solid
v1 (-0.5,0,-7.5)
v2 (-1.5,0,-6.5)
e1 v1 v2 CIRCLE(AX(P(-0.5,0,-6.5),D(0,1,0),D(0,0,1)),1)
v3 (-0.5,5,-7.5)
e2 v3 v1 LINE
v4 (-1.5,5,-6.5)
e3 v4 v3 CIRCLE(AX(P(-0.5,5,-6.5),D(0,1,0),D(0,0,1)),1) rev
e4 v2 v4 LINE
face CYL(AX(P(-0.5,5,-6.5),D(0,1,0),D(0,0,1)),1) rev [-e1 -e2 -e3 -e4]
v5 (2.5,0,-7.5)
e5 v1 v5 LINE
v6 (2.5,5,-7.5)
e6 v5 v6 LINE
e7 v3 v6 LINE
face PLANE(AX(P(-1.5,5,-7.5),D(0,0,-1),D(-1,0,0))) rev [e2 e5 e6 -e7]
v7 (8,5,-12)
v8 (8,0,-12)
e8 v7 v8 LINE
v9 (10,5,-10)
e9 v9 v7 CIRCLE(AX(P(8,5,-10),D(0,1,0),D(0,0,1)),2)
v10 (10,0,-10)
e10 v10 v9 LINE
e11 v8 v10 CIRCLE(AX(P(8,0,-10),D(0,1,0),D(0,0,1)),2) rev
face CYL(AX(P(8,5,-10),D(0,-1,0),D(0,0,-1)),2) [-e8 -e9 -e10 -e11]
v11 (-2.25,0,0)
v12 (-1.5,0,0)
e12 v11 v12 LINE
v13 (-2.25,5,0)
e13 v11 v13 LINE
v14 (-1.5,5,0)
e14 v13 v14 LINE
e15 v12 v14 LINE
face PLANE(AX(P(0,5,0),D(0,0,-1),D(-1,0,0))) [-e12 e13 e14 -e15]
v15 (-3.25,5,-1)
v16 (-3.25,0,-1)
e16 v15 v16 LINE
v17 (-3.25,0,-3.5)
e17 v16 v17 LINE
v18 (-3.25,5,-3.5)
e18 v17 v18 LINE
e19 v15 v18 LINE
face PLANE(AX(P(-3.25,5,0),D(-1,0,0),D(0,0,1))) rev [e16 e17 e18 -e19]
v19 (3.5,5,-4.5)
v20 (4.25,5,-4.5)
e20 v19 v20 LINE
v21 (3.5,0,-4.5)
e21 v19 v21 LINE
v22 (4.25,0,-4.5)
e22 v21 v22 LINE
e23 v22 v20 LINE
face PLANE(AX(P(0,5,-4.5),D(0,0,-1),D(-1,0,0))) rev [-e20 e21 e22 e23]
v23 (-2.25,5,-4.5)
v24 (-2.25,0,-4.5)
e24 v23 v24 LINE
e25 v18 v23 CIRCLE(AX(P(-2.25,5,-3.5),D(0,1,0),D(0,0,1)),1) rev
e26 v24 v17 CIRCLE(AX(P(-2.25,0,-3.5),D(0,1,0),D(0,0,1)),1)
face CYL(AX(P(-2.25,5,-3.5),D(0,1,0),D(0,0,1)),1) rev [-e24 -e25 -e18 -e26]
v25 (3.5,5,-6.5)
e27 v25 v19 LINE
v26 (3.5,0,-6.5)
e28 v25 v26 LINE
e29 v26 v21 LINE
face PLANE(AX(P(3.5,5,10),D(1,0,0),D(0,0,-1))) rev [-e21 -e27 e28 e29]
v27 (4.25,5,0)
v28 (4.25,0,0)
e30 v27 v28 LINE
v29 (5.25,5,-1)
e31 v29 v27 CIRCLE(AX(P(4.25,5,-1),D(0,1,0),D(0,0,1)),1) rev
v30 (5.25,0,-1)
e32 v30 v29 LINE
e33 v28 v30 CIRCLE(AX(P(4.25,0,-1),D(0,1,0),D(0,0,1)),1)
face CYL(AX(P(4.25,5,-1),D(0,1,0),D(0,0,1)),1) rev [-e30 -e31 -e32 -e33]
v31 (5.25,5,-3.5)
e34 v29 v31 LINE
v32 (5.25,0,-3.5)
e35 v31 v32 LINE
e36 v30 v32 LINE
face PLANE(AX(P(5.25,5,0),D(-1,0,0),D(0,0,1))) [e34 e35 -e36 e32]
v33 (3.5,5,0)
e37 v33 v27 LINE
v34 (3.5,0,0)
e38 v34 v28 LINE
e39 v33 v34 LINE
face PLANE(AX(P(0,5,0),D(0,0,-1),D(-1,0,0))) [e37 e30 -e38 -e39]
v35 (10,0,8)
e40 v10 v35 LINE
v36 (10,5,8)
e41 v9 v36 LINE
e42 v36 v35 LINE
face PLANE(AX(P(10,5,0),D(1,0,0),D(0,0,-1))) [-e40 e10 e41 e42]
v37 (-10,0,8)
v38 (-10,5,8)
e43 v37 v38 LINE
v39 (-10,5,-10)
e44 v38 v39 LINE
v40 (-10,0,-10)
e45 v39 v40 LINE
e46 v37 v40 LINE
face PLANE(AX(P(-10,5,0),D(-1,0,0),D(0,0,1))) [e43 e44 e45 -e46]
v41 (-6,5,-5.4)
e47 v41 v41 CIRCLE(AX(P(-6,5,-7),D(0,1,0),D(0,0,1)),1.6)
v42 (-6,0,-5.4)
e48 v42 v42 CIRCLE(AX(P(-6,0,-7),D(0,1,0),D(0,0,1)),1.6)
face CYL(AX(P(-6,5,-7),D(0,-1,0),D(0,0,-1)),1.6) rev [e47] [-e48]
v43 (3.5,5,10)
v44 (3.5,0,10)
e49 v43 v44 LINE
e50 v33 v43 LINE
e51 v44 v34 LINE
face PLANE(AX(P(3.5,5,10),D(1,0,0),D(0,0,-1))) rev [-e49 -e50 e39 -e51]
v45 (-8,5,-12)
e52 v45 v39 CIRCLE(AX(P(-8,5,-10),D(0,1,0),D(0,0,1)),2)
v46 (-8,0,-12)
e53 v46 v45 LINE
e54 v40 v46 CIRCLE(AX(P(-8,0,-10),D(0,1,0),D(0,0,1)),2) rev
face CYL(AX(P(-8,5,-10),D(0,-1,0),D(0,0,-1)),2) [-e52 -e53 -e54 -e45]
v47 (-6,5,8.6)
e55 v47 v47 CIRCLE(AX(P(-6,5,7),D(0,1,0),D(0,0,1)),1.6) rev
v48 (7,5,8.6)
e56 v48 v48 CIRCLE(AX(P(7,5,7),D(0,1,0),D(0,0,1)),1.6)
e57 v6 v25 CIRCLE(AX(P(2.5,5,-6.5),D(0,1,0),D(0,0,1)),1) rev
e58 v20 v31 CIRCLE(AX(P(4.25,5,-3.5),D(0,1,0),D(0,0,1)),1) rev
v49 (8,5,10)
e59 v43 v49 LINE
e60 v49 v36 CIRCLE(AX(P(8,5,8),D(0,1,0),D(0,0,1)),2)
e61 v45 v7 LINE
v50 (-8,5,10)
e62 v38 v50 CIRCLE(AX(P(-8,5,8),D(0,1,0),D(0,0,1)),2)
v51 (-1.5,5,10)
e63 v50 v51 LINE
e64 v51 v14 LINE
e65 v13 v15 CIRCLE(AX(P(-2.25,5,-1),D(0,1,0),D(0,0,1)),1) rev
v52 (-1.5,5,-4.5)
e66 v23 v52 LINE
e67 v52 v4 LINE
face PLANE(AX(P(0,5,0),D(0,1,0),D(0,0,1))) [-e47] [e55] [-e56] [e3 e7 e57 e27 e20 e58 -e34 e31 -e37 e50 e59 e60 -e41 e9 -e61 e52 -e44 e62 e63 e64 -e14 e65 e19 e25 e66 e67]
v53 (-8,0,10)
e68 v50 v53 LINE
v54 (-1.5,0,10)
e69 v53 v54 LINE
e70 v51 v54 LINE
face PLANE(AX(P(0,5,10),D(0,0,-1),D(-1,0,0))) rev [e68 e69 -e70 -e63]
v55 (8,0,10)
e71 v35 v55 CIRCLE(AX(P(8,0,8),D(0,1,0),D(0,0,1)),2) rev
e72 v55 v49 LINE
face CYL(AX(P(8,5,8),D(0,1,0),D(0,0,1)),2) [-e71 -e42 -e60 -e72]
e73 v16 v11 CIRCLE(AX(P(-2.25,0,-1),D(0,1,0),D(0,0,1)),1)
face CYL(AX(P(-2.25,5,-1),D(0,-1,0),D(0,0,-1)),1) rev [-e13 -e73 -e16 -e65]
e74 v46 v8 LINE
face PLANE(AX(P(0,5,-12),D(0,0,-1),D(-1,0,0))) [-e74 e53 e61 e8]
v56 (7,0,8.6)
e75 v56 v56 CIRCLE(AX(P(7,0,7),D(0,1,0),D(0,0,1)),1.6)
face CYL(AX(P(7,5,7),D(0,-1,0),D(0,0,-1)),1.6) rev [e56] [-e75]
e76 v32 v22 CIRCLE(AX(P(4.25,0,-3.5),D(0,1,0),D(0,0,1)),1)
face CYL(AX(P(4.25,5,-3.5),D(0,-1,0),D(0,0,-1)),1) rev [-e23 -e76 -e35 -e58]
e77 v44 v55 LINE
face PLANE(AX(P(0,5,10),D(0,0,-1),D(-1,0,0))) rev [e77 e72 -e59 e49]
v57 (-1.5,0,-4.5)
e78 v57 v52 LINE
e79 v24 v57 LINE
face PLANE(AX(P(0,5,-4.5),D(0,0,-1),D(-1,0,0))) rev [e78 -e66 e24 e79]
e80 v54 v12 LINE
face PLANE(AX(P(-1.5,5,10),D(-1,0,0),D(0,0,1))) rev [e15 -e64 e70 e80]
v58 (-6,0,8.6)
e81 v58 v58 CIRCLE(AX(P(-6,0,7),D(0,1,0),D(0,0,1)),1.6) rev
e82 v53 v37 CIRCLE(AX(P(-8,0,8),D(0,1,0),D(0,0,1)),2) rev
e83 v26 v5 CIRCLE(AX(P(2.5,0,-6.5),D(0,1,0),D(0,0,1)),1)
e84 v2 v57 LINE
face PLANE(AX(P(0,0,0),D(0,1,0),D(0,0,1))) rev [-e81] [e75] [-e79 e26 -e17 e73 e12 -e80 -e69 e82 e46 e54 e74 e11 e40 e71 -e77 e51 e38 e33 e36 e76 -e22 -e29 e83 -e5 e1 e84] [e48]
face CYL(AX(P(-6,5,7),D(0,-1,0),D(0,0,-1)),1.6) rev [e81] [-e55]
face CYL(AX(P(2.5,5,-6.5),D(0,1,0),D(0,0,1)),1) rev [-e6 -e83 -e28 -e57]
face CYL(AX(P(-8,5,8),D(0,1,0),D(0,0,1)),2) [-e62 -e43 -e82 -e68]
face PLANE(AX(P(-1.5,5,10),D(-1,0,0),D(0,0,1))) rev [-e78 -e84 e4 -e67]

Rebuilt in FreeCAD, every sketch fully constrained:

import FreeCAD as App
import Part
import Sketcher


def edges_at(feature, points):
    """Names of the edges that pass closest to the given points."""
    edges = feature.Shape.Edges
    near = lambda p: min(range(len(edges)), key=lambda i: edges[i].distToShape(Part.Vertex(*p))[0])
    return sorted({f"Edge{near(p) + 1}" for p in points})

doc = App.newDocument("Part")
params = doc.addObject("Spreadsheet::Sheet", "Params")
for row, (alias, value) in enumerate([
    ("sketch1_diameter", "3.2 mm"),
    ("sketch1_width", "20 mm"),
    ("sketch1_height", "22 mm"),
    ("sketch1_width2", "8.5 mm"),
    ("sketch1_height2", "4.5 mm"),
    ("pad1_length", "5 mm"),
    ("sketch2_width", "5 mm"),
    ("sketch2_height", "17.5 mm"),
    ("fillet_radius", "2 mm"),
    ("fillet2_radius", "1 mm"),
], start=1):
    params.set(f"A{row}", alias)
    params.set(f"B{row}", "=" + value)
    params.setAlias(f"B{row}", alias)

body = doc.addObject("PartDesign::Body", "Body")

# Sketch on XZ plane
sketch1 = body.newObject("Sketcher::SketchObject", "Sketch")
sketch1.AttachmentSupport = (doc.getObject("XZ_Plane"), [""])
sketch1.MapMode = "FlatFace"
sketch1.addGeometry(Part.LineSegment(App.Vector(-10, -12, 0), App.Vector(-10, 10, 0)), False)
sketch1.addGeometry(Part.LineSegment(App.Vector(-10, 10, 0), App.Vector(10, 10, 0)), False)
sketch1.addGeometry(Part.LineSegment(App.Vector(10, 10, 0), App.Vector(10, -12, 0)), False)
sketch1.addGeometry(Part.LineSegment(App.Vector(10, -12, 0), App.Vector(-10, -12, 0)), False)
sketch1.addGeometry(Part.Circle(App.Vector(-6, 7, 0), App.Vector(0, 0, 1), 1.6), False)
sketch1.addGeometry(Part.Circle(App.Vector(7, 7, 0), App.Vector(0, 0, 1), 1.6), False)
sketch1.addGeometry(Part.Circle(App.Vector(-6, -7, 0), App.Vector(0, 0, 1), 1.6), False)
sketch1.addGeometry(Part.LineSegment(App.Vector(5.2, 0, 0), App.Vector(-3.2, 0, 0)), False)
sketch1.addGeometry(Part.LineSegment(App.Vector(-3.2, 0, 0), App.Vector(-3.2, -4.5, 0)), False)
sketch1.addGeometry(Part.LineSegment(App.Vector(-3.2, -4.5, 0), App.Vector(5.2, -4.5, 0)), False)
sketch1.addGeometry(Part.LineSegment(App.Vector(5.2, -4.5, 0), App.Vector(5.2, 0, 0)), False)
sketch1.addConstraint(Sketcher.Constraint("Coincident", 0, 2, 1, 1))
sketch1.addConstraint(Sketcher.Constraint("Coincident", 1, 2, 2, 1))
sketch1.addConstraint(Sketcher.Constraint("Coincident", 2, 2, 3, 1))
sketch1.addConstraint(Sketcher.Constraint("Coincident", 3, 2, 0, 1))
sketch1.addConstraint(Sketcher.Constraint("Coincident", 7, 2, 8, 1))
sketch1.addConstraint(Sketcher.Constraint("Coincident", 8, 2, 9, 1))
sketch1.addConstraint(Sketcher.Constraint("Coincident", 9, 2, 10, 1))
sketch1.addConstraint(Sketcher.Constraint("Coincident", 10, 2, 7, 1))
sketch1.addConstraint(Sketcher.Constraint("Vertical", 0))
sketch1.addConstraint(Sketcher.Constraint("Horizontal", 1))
sketch1.addConstraint(Sketcher.Constraint("Vertical", 2))
sketch1.addConstraint(Sketcher.Constraint("Horizontal", 3))
sketch1.addConstraint(Sketcher.Constraint("Horizontal", 7))
sketch1.addConstraint(Sketcher.Constraint("Vertical", 8))
sketch1.addConstraint(Sketcher.Constraint("Horizontal", 9))
sketch1.addConstraint(Sketcher.Constraint("Vertical", 10))
sketch1.addConstraint(Sketcher.Constraint("Equal", 4, 5))
sketch1.addConstraint(Sketcher.Constraint("Equal", 5, 6))
sketch1.addConstraint(Sketcher.Constraint("Symmetric", 4, 3, 6, 3, -1))
sketch1.addConstraint(Sketcher.Constraint("PointOnObject", 7, 2, -1))
sketch1.addConstraint(Sketcher.Constraint("Horizontal", 4, 3, 5, 3))
sketch1.addConstraint(Sketcher.Constraint("Diameter", 4, 3.2))
sketch1.addConstraint(Sketcher.Constraint("DistanceX", 1, 1, 1, 2, 20.0))
sketch1.addConstraint(Sketcher.Constraint("DistanceY", 0, 1, 0, 2, 22.0))
sketch1.addConstraint(Sketcher.Constraint("DistanceX", 7, 2, 7, 1, 8.5))
sketch1.addConstraint(Sketcher.Constraint("DistanceY", 8, 2, 8, 1, 4.5))
sketch1.addConstraint(Sketcher.Constraint("DistanceX", 4, 3, -1, 1, 6.0))
sketch1.addConstraint(Sketcher.Constraint("DistanceY", -1, 1, 4, 3, 7.0))
sketch1.addConstraint(Sketcher.Constraint("DistanceX", -1, 1, 5, 3, 7.0))
sketch1.addConstraint(Sketcher.Constraint("DistanceX", 0, 2, -1, 1, 10.0))
sketch1.addConstraint(Sketcher.Constraint("DistanceY", -1, 1, 0, 2, 10.0))
sketch1.addConstraint(Sketcher.Constraint("DistanceX", 7, 2, -1, 1, 3.25))
sketch1.setExpression("Constraints[21]", "Params.sketch1_diameter")
sketch1.setExpression("Constraints[22]", "Params.sketch1_width")
sketch1.setExpression("Constraints[23]", "Params.sketch1_height")
sketch1.setExpression("Constraints[24]", "Params.sketch1_width2")
sketch1.setExpression("Constraints[25]", "Params.sketch1_height2")
pad1 = body.newObject("PartDesign::Pad", "Pad")
pad1.Profile = sketch1
pad1.setExpression("Length", "Params.pad1_length")
pad1.Reversed = True

# Sketch on XZ plane
sketch2 = body.newObject("Sketcher::SketchObject", "Sketch001")
sketch2.AttachmentSupport = (doc.getObject("XZ_Plane"), [""])
sketch2.MapMode = "FlatFace"
sketch2.addGeometry(Part.LineSegment(App.Vector(-2, 10, 0), App.Vector(-2, -8, 0)), False)
sketch2.addGeometry(Part.LineSegment(App.Vector(-2, -8, 0), App.Vector(4, -8, 0)), False)
sketch2.addGeometry(Part.LineSegment(App.Vector(4, -8, 0), App.Vector(4, 10, 0)), False)
sketch2.addGeometry(Part.LineSegment(App.Vector(4, 10, 0), App.Vector(-2, 10, 0)), False)
sketch2.addConstraint(Sketcher.Constraint("Coincident", 0, 2, 1, 1))
sketch2.addConstraint(Sketcher.Constraint("Coincident", 1, 2, 2, 1))
sketch2.addConstraint(Sketcher.Constraint("Coincident", 2, 2, 3, 1))
sketch2.addConstraint(Sketcher.Constraint("Coincident", 3, 2, 0, 1))
sketch2.addConstraint(Sketcher.Constraint("Vertical", 0))
sketch2.addConstraint(Sketcher.Constraint("Horizontal", 1))
sketch2.addConstraint(Sketcher.Constraint("Vertical", 2))
sketch2.addConstraint(Sketcher.Constraint("Horizontal", 3))
sketch2.addConstraint(Sketcher.Constraint("DistanceX", 1, 1, 1, 2, 5.0))
sketch2.addConstraint(Sketcher.Constraint("DistanceY", 0, 2, 0, 1, 17.5))
sketch2.addConstraint(Sketcher.Constraint("DistanceY", -1, 1, 2, 2, 10.0))
sketch2.addConstraint(Sketcher.Constraint("DistanceX", 0, 2, -1, 1, 1.5))
sketch2.setExpression("Constraints[8]", "Params.sketch2_width")
sketch2.setExpression("Constraints[9]", "Params.sketch2_height")
pocket1 = body.newObject("PartDesign::Pocket", "Pocket")
pocket1.Profile = sketch2
pocket1.Type = "ThroughAll"
doc.recompute()

fillet = body.newObject("PartDesign::Fillet", "Fillet")
fillet.Base = (pocket1, edges_at(pocket1, [
    (10, 2.5, 10),
    (-10, 2.5, 10),
    (-10, 2.5, -12),
    (10, 2.5, -12),
]))
fillet.setExpression("Radius", "Params.fillet_radius")
doc.recompute()

fillet2 = body.newObject("PartDesign::Fillet", "Fillet001")
fillet2.Base = (fillet, edges_at(fillet, [
    (5.25, 2.5, -4.5),
    (-3.25, 2.5, -4.5),
    (-3.25, 2.5, 0),
    (5.25, 2.5, 0),
    (-1.5, 2.5, -7.5),
    (3.5, 2.5, -7.5),
]))
fillet2.setExpression("Radius", "Params.fillet2_radius")

doc.recompute()
